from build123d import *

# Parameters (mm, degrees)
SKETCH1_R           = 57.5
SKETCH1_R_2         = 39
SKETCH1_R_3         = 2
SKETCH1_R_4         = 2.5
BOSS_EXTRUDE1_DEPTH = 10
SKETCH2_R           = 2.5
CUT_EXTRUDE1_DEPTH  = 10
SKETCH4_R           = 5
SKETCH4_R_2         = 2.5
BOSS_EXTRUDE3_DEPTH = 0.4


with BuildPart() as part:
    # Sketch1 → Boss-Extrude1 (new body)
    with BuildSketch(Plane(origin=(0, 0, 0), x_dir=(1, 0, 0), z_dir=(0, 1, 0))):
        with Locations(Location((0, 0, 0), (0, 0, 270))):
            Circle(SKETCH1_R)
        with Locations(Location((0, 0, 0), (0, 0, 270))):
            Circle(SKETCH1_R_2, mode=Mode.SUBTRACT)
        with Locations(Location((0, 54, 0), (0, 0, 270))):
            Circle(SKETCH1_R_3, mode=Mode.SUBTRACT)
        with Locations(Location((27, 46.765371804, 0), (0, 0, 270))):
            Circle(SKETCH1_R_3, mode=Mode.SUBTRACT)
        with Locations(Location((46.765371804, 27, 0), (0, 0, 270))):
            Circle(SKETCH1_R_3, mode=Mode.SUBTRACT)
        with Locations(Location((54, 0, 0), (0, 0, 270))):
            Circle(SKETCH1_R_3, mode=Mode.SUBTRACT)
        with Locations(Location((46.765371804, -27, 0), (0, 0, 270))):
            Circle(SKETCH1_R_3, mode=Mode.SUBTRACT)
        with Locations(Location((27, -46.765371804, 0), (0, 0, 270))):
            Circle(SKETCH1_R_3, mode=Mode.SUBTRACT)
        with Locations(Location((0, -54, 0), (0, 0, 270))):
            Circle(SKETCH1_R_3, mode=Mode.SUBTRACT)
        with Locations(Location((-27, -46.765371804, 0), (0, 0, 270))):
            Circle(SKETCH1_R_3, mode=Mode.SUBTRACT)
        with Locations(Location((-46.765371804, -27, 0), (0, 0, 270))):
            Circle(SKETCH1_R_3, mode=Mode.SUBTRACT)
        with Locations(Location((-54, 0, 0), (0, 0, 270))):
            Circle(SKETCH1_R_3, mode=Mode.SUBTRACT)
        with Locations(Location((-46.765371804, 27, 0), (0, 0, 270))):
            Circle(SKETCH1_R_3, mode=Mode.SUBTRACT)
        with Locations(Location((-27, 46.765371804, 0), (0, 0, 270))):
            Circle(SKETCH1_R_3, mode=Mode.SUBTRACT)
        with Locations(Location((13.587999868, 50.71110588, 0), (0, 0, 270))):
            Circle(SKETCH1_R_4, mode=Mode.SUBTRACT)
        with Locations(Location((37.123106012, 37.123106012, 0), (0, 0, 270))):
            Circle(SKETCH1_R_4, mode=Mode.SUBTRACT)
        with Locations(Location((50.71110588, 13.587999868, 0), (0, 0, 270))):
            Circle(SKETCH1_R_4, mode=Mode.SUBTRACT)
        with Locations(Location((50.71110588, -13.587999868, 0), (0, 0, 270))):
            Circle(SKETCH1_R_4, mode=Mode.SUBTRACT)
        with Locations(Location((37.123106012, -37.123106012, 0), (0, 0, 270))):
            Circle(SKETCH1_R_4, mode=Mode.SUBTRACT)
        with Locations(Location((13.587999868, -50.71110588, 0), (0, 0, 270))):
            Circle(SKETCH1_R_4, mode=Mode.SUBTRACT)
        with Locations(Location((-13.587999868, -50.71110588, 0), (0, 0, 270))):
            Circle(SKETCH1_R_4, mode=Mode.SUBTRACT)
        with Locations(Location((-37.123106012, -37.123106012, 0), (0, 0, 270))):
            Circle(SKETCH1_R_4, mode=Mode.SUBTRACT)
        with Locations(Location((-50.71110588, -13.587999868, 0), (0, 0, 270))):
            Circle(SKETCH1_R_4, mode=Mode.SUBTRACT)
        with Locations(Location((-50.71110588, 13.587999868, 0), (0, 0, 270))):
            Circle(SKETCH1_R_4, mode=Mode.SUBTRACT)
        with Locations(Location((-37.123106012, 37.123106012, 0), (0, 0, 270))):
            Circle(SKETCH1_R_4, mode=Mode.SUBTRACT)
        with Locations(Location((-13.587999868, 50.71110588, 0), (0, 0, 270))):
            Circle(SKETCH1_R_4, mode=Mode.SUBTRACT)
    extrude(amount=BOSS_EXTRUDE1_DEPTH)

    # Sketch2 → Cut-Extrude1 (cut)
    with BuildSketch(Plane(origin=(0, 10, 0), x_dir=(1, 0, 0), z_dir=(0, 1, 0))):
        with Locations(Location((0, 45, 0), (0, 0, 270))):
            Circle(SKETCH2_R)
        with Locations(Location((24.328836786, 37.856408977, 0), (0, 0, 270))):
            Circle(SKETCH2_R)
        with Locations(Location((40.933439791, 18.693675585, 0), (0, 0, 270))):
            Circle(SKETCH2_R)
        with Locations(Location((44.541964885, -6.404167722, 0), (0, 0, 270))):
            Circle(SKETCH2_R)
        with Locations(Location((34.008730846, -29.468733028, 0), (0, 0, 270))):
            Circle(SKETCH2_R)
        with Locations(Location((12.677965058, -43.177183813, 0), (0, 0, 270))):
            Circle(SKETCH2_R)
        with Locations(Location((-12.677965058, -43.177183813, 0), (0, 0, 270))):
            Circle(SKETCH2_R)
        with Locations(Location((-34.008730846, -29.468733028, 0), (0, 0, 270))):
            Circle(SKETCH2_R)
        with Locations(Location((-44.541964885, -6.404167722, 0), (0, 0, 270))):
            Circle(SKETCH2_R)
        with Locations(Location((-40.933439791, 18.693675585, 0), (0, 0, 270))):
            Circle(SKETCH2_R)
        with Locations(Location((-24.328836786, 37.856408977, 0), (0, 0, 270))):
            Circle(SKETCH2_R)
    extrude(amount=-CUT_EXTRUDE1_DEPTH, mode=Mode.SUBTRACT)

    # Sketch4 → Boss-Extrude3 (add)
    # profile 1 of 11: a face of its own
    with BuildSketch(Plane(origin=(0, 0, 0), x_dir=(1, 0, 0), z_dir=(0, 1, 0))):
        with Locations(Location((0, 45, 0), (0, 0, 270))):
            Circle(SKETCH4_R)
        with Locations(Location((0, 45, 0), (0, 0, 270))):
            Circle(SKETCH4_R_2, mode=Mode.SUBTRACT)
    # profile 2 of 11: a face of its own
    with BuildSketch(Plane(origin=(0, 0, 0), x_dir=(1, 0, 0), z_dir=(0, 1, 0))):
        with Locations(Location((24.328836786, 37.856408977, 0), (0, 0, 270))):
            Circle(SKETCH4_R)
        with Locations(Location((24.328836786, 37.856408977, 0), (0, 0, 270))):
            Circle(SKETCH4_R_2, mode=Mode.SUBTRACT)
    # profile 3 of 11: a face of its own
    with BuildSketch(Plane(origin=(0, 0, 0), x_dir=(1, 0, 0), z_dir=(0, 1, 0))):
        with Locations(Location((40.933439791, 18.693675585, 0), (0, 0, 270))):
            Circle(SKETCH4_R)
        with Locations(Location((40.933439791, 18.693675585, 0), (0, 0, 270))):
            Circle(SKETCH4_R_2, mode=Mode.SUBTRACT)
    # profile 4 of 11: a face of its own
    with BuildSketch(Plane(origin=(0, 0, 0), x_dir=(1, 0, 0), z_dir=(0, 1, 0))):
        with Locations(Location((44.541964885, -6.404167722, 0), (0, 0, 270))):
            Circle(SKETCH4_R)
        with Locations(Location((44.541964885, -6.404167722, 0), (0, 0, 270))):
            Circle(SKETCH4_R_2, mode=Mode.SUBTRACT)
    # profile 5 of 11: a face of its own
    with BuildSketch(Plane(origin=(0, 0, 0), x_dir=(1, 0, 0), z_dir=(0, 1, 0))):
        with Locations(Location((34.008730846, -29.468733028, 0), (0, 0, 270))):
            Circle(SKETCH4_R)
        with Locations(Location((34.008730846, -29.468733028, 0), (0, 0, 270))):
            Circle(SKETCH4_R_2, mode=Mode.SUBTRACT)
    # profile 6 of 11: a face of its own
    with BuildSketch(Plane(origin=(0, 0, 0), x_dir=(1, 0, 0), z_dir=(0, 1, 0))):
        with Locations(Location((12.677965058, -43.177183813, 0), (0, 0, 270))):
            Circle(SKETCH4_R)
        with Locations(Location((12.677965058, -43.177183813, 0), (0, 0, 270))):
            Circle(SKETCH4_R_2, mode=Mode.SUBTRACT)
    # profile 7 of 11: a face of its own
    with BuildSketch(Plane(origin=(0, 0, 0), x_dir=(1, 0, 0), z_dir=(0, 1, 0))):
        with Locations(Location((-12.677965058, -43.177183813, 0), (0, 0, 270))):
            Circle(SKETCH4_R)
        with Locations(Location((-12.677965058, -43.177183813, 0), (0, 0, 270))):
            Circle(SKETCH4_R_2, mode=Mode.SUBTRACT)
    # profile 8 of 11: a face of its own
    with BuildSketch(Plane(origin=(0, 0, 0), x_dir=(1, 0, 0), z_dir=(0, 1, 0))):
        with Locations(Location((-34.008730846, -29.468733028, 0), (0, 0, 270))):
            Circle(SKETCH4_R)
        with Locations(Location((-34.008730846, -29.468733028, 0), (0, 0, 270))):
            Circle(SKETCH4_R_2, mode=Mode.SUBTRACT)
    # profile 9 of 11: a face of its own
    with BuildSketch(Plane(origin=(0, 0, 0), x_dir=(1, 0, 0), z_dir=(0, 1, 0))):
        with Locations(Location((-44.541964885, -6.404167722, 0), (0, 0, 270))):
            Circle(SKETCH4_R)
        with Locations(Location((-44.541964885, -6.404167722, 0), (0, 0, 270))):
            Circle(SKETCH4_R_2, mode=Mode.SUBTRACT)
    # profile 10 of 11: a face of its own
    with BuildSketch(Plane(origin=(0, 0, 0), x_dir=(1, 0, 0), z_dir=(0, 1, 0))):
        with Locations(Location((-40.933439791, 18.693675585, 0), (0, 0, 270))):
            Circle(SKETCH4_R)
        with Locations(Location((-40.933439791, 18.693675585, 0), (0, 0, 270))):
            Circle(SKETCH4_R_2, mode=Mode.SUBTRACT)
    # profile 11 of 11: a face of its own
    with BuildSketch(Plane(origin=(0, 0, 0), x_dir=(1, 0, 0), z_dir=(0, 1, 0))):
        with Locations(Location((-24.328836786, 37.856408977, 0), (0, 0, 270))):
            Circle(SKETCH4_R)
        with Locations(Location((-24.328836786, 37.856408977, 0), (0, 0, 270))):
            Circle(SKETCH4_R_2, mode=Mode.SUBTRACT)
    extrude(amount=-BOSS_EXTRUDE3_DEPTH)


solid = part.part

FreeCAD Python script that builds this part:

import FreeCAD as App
import Part
import Sketcher

doc = App.newDocument("Part")
params = doc.addObject("Spreadsheet::Sheet", "Params")
for row, (alias, value) in enumerate([
    ("sketch1_diameter", "115 mm"),
    ("sketch1_diameter2", "5 mm"),
    ("sketch1_diameter3", "4 mm"),
    ("sketch1_diameter4", "78 mm"),
    ("pad1_length", "10 mm"),
    ("sketch2_diameter", "5 mm"),
    ("pocket1_length", "10 mm"),
    ("sketch3_diameter", "10 mm"),
    ("sketch3_diameter2", "5 mm"),
    ("pad2_length", "0.4 mm"),
], start=1):
    params.set(f"A{row}", alias)
    params.set(f"B{row}", "=" + value)
    params.setAlias(f"B{row}", alias)

body = doc.addObject("PartDesign::Body", "Body")

sketch1 = body.newObject("Sketcher::SketchObject", "Sketch")
sketch1.AttachmentSupport = (doc.getObject("XZ_Plane"), [""])
sketch1.MapMode = "FlatFace"
sketch1.addGeometry([
    Part.Circle(App.Vector(0, 0, 0), App.Vector(0, 0, 1), 57.5),
    Part.Circle(App.Vector(-37.123106, -37.123106, 0), App.Vector(0, 0, 1), 2.5),
    Part.Circle(App.Vector(-46.765372, -27, 0), App.Vector(0, 0, 1), 2),
    Part.Circle(App.Vector(-50.711106, -13.588, 0), App.Vector(0, 0, 1), 2.5),
    Part.Circle(App.Vector(-27, -46.765372, 0), App.Vector(0, 0, 1), 2),
    Part.Circle(App.Vector(-13.588, -50.711106, 0), App.Vector(0, 0, 1), 2.5),
    Part.Circle(App.Vector(0, -54, 0), App.Vector(0, 0, 1), 2),
    Part.Circle(App.Vector(-54, 0, 0), App.Vector(0, 0, 1), 2),
    Part.Circle(App.Vector(-50.711106, 13.588, 0), App.Vector(0, 0, 1), 2.5),
    Part.Circle(App.Vector(-46.765372, 27, 0), App.Vector(0, 0, 1), 2),
    Part.Circle(App.Vector(-37.123106, 37.123106, 0), App.Vector(0, 0, 1), 2.5),
    Part.Circle(App.Vector(-27, 46.765372, 0), App.Vector(0, 0, 1), 2),
    Part.Circle(App.Vector(-13.588, 50.711106, 0), App.Vector(0, 0, 1), 2.5),
    Part.Circle(App.Vector(13.588, -50.711106, 0), App.Vector(0, 0, 1), 2.5),
    Part.Circle(App.Vector(27, -46.765372, 0), App.Vector(0, 0, 1), 2),
    Part.Circle(App.Vector(37.123106, -37.123106, 0), App.Vector(0, 0, 1), 2.5),
    Part.Circle(App.Vector(46.765372, -27, 0), App.Vector(0, 0, 1), 2),
    Part.Circle(App.Vector(50.711106, -13.588, 0), App.Vector(0, 0, 1), 2.5),
    Part.Circle(App.Vector(54, 0, 0), App.Vector(0, 0, 1), 2),
    Part.Circle(App.Vector(0, 0, 0), App.Vector(0, 0, 1), 39),
    Part.Circle(App.Vector(0, 54, 0), App.Vector(0, 0, 1), 2),
    Part.Circle(App.Vector(13.588, 50.711106, 0), App.Vector(0, 0, 1), 2.5),
    Part.Circle(App.Vector(27, 46.765372, 0), App.Vector(0, 0, 1), 2),
    Part.Circle(App.Vector(50.711106, 13.588, 0), App.Vector(0, 0, 1), 2.5),
    Part.Circle(App.Vector(46.765372, 27, 0), App.Vector(0, 0, 1), 2),
    Part.Circle(App.Vector(37.123106, 37.123106, 0), App.Vector(0, 0, 1), 2.5),
], False)
sketch1.addConstraint([
    Sketcher.Constraint("Coincident", 0, 3, -1, 1),
    Sketcher.Constraint("Coincident", 19, 3, -1, 1),
    Sketcher.Constraint("Equal", 1, 3),
    Sketcher.Constraint("Equal", 2, 4),
    Sketcher.Constraint("Equal", 3, 5),
    Sketcher.Constraint("Equal", 4, 6),
    Sketcher.Constraint("Equal", 6, 7),
    Sketcher.Constraint("Equal", 5, 8),
    Sketcher.Constraint("Equal", 7, 9),
    Sketcher.Constraint("Equal", 8, 10),
    Sketcher.Constraint("Equal", 9, 11),
    Sketcher.Constraint("Equal", 10, 12),
    Sketcher.Constraint("Equal", 12, 13),
    Sketcher.Constraint("Equal", 11, 14),
    Sketcher.Constraint("Equal", 13, 15),
    Sketcher.Constraint("Equal", 14, 16),
    Sketcher.Constraint("Equal", 15, 17),
    Sketcher.Constraint("Equal", 16, 18),
    Sketcher.Constraint("Equal", 18, 20),
    Sketcher.Constraint("Equal", 17, 21),
    Sketcher.Constraint("Equal", 20, 22),
    Sketcher.Constraint("Equal", 21, 23),
    Sketcher.Constraint("Equal", 22, 24),
    Sketcher.Constraint("Equal", 23, 25),
    Sketcher.Constraint("Symmetric", 12, 3, 13, 3, -1, 1),
    Sketcher.Constraint("Symmetric", 11, 3, 14, 3, -1, 1),
    Sketcher.Constraint("Symmetric", 10, 3, 15, 3, -1, 1),
    Sketcher.Constraint("Symmetric", 9, 3, 16, 3, -1, 1),
    Sketcher.Constraint("Symmetric", 8, 3, 17, 3, -1, 1),
    Sketcher.Constraint("Symmetric", 7, 3, 18, 3, -1, 1),
    Sketcher.Constraint("Symmetric", 6, 3, 20, 3, -1, 1),
    Sketcher.Constraint("Symmetric", 5, 3, 21, 3, -1, 1),
    Sketcher.Constraint("Symmetric", 4, 3, 22, 3, -1, 1),
    Sketcher.Constraint("Symmetric", 3, 3, 23, 3, -1, 1),
    Sketcher.Constraint("Symmetric", 2, 3, 24, 3, -1, 1),
    Sketcher.Constraint("Symmetric", 1, 3, 25, 3, -1, 1),
    Sketcher.Constraint("Symmetric", 5, 3, 13, 3, -2),
    Sketcher.Constraint("Symmetric", 4, 3, 14, 3, -2),
    Sketcher.Constraint("Symmetric", 1, 3, 15, 3, -2),
    Sketcher.Constraint("Symmetric", 2, 3, 16, 3, -2),
    Sketcher.Constraint("Symmetric", 3, 3, 17, 3, -2),
    Sketcher.Constraint("PointOnObject", 6, 3, -2),
    Sketcher.Constraint("PointOnObject", 7, 3, -1),
    Sketcher.Constraint("Diameter", 0, 115.0),
    Sketcher.Constraint("Diameter", 1, 5.0),
    Sketcher.Constraint("Diameter", 2, 4.0),
    Sketcher.Constraint("Diameter", 19, 78.0),
    Sketcher.Constraint("DistanceY", 2, 3, -1, 1, 27.0),
    Sketcher.Constraint("DistanceX", 4, 3, -1, 1, 27.0),
    Sketcher.Constraint("DistanceY", 6, 3, -1, 1, 54.0),
    Sketcher.Constraint("DistanceX", 7, 3, -1, 1, 54.0),
    Sketcher.Constraint("DistanceY", 3, 3, -1, 1, 13.588),
    Sketcher.Constraint("DistanceX", 5, 3, -1, 1, 13.588),
    Sketcher.Constraint("DistanceX", 3, 3, 1, 3, 13.588),
    Sketcher.Constraint("DistanceY", 5, 3, 1, 3, 13.588),
    Sketcher.Constraint("DistanceX", 2, 3, -1, 1, 46.765372),
    Sketcher.Constraint("DistanceY", 4, 3, -1, 1, 46.765372),
    Sketcher.Constraint("DistanceX", 1, 3, -1, 1, 37.123106),
    Sketcher.Constraint("DistanceY", 1, 3, -1, 1, 37.123106),
])
sketch1.setExpression("Constraints[43]", "Params.sketch1_diameter")
sketch1.setExpression("Constraints[44]", "Params.sketch1_diameter2")
sketch1.setExpression("Constraints[45]", "Params.sketch1_diameter3")
sketch1.setExpression("Constraints[46]", "Params.sketch1_diameter4")
pad1 = body.newObject("PartDesign::Pad", "Pad")
pad1.Profile = sketch1
pad1.setExpression("Length", "Params.pad1_length")
pad1.Reversed = True

sketch2 = body.newObject("Sketcher::SketchObject", "Sketch001")
sketch2.AttachmentSupport = (doc.getObject("XZ_Plane"), [""])
sketch2.MapMode = "FlatFace"
sketch2.AttachmentOffset = App.Placement(App.Vector(0, 0, -10), App.Rotation())
sketch2.addGeometry([
    Part.Circle(App.Vector(0, -45, 0), App.Vector(0, 0, 1), 2.5),
    Part.Circle(App.Vector(24.328837, -37.856409, 0), App.Vector(0, 0, 1), 2.5),
    Part.Circle(App.Vector(40.93344, -18.693676, 0), App.Vector(0, 0, 1), 2.5),
    Part.Circle(App.Vector(44.541965, 6.404168, 0), App.Vector(0, 0, 1), 2.5),
    Part.Circle(App.Vector(34.008731, 29.468733, 0), App.Vector(0, 0, 1), 2.5),
    Part.Circle(App.Vector(12.677965, 43.177184, 0), App.Vector(0, 0, 1), 2.5),
    Part.Circle(App.Vector(-12.677965, 43.177184, 0), App.Vector(0, 0, 1), 2.5),
    Part.Circle(App.Vector(-34.008731, 29.468733, 0), App.Vector(0, 0, 1), 2.5),
    Part.Circle(App.Vector(-44.541965, 6.404168, 0), App.Vector(0, 0, 1), 2.5),
    Part.Circle(App.Vector(-40.93344, -18.693676, 0), App.Vector(0, 0, 1), 2.5),
    Part.Circle(App.Vector(-24.328837, -37.856409, 0), App.Vector(0, 0, 1), 2.5),
], False)
sketch2.addConstraint([
    Sketcher.Constraint("Equal", 0, 1),
    Sketcher.Constraint("Equal", 1, 2),
    Sketcher.Constraint("Equal", 2, 3),
    Sketcher.Constraint("Equal", 3, 4),
    Sketcher.Constraint("Equal", 4, 5),
    Sketcher.Constraint("Equal", 5, 6),
    Sketcher.Constraint("Equal", 6, 7),
    Sketcher.Constraint("Equal", 7, 8),
    Sketcher.Constraint("Equal", 8, 9),
    Sketcher.Constraint("Equal", 9, 10),
    Sketcher.Constraint("Symmetric", 5, 3, 6, 3, -2),
    Sketcher.Constraint("Symmetric", 4, 3, 7, 3, -2),
    Sketcher.Constraint("Symmetric", 3, 3, 8, 3, -2),
    Sketcher.Constraint("Symmetric", 2, 3, 9, 3, -2),
    Sketcher.Constraint("Symmetric", 1, 3, 10, 3, -2),
    Sketcher.Constraint("PointOnObject", 0, 3, -2),
    Sketcher.Constraint("Diameter", 0, 5.0),
    Sketcher.Constraint("DistanceY", 0, 3, -1, 1, 45.0),
    Sketcher.Constraint("DistanceX", 5, 3, 3, 3, 31.864),
    Sketcher.Constraint("DistanceX", 6, 3, 1, 3, 37.006802),
    Sketcher.Constraint("DistanceY", 1, 3, -1, 1, 37.856409),
    Sketcher.Constraint("DistanceX", -1, 1, 2, 3, 40.93344),
    Sketcher.Constraint("DistanceX", -1, 1, 4, 3, 34.008731),
    Sketcher.Constraint("DistanceX", 1, 3, 3, 3, 20.213128),
    Sketcher.Constraint("DistanceY", 2, 3, 4, 3, 48.162409),
    Sketcher.Constraint("DistanceY", 4, 3, 5, 3, 13.708451),
    Sketcher.Constraint("DistanceY", 2, 3, -1, 1, 18.693676),
    Sketcher.Constraint("DistanceY", -1, 1, 3, 3, 6.404168),
])
sketch2.setExpression("Constraints[16]", "Params.sketch2_diameter")
pocket1 = body.newObject("PartDesign::Pocket", "Pocket")
pocket1.Profile = sketch2
pocket1.setExpression("Length", "Params.pocket1_length")
pocket1.Reversed = True

sketch3 = body.newObject("Sketcher::SketchObject", "Sketch002")
sketch3.AttachmentSupport = (doc.getObject("XZ_Plane"), [""])
sketch3.MapMode = "FlatFace"
sketch3.addGeometry([
    Part.Circle(App.Vector(0, -45, 0), App.Vector(0, 0, 1), 5),
    Part.Circle(App.Vector(0, -45, 0), App.Vector(0, 0, 1), 2.5),
    Part.Circle(App.Vector(24.328837, -37.856409, 0), App.Vector(0, 0, 1), 5),
    Part.Circle(App.Vector(24.328837, -37.856409, 0), App.Vector(0, 0, 1), 2.5),
    Part.Circle(App.Vector(40.93344, -18.693676, 0), App.Vector(0, 0, 1), 5),
    Part.Circle(App.Vector(40.93344, -18.693676, 0), App.Vector(0, 0, 1), 2.5),
    Part.Circle(App.Vector(44.541965, 6.404168, 0), App.Vector(0, 0, 1), 5),
    Part.Circle(App.Vector(44.541965, 6.404168, 0), App.Vector(0, 0, 1), 2.5),
    Part.Circle(App.Vector(34.008731, 29.468733, 0), App.Vector(0, 0, 1), 5),
    Part.Circle(App.Vector(34.008731, 29.468733, 0), App.Vector(0, 0, 1), 2.5),
    Part.Circle(App.Vector(12.677965, 43.177184, 0), App.Vector(0, 0, 1), 5),
    Part.Circle(App.Vector(12.677965, 43.177184, 0), App.Vector(0, 0, 1), 2.5),
    Part.Circle(App.Vector(-12.677965, 43.177184, 0), App.Vector(0, 0, 1), 5),
    Part.Circle(App.Vector(-12.677965, 43.177184, 0), App.Vector(0, 0, 1), 2.5),
    Part.Circle(App.Vector(-34.008731, 29.468733, 0), App.Vector(0, 0, 1), 5),
    Part.Circle(App.Vector(-34.008731, 29.468733, 0), App.Vector(0, 0, 1), 2.5),
    Part.Circle(App.Vector(-44.541965, 6.404168, 0), App.Vector(0, 0, 1), 5),
    Part.Circle(App.Vector(-44.541965, 6.404168, 0), App.Vector(0, 0, 1), 2.5),
    Part.Circle(App.Vector(-40.93344, -18.693676, 0), App.Vector(0, 0, 1), 5),
    Part.Circle(App.Vector(-40.93344, -18.693676, 0), App.Vector(0, 0, 1), 2.5),
    Part.Circle(App.Vector(-24.328837, -37.856409, 0), App.Vector(0, 0, 1), 5),
    Part.Circle(App.Vector(-24.328837, -37.856409, 0), App.Vector(0, 0, 1), 2.5),
], False)
sketch3.addConstraint([
    Sketcher.Constraint("Coincident", 1, 3, 0, 3),
    Sketcher.Constraint("Coincident", 3, 3, 2, 3),
    Sketcher.Constraint("Coincident", 5, 3, 4, 3),
    Sketcher.Constraint("Coincident", 7, 3, 6, 3),
    Sketcher.Constraint("Coincident", 9, 3, 8, 3),
    Sketcher.Constraint("Coincident", 11, 3, 10, 3),
    Sketcher.Constraint("Coincident", 13, 3, 12, 3),
    Sketcher.Constraint("Coincident", 15, 3, 14, 3),
    Sketcher.Constraint("Coincident", 17, 3, 16, 3),
    Sketcher.Constraint("Coincident", 19, 3, 18, 3),
    Sketcher.Constraint("Coincident", 21, 3, 20, 3),
    Sketcher.Constraint("Equal", 0, 2),
    Sketcher.Constraint("Equal", 1, 3),
    Sketcher.Constraint("Equal", 2, 4),
    Sketcher.Constraint("Equal", 3, 5),
    Sketcher.Constraint("Equal", 4, 6),
    Sketcher.Constraint("Equal", 5, 7),
    Sketcher.Constraint("Equal", 6, 8),
    Sketcher.Constraint("Equal", 7, 9),
    Sketcher.Constraint("Equal", 8, 10),
    Sketcher.Constraint("Equal", 9, 11),
    Sketcher.Constraint("Equal", 10, 12),
    Sketcher.Constraint("Equal", 11, 13),
    Sketcher.Constraint("Equal", 12, 14),
    Sketcher.Constraint("Equal", 13, 15),
    Sketcher.Constraint("Equal", 14, 16),
    Sketcher.Constraint("Equal", 15, 17),
    Sketcher.Constraint("Equal", 16, 18),
    Sketcher.Constraint("Equal", 17, 19),
    Sketcher.Constraint("Equal", 18, 20),
    Sketcher.Constraint("Equal", 19, 21),
    Sketcher.Constraint("Symmetric", 10, 3, 12, 3, -2),
    Sketcher.Constraint("Symmetric", 8, 3, 14, 3, -2),
    Sketcher.Constraint("Symmetric", 6, 3, 16, 3, -2),
    Sketcher.Constraint("Symmetric", 4, 3, 18, 3, -2),
    Sketcher.Constraint("Symmetric", 2, 3, 20, 3, -2),
    Sketcher.Constraint("PointOnObject", 0, 3, -2),
    Sketcher.Constraint("Diameter", 0, 10.0),
    Sketcher.Constraint("Diameter", 1, 5.0),
    Sketcher.Constraint("DistanceY", 0, 3, -1, 1, 45.0),
    Sketcher.Constraint("DistanceX", 10, 3, 6, 3, 31.864),
    Sketcher.Constraint("DistanceY", 2, 3, -1, 1, 37.856409),
    Sketcher.Constraint("DistanceX", -1, 1, 4, 3, 40.93344),
    Sketcher.Constraint("DistanceX", -1, 1, 8, 3, 34.008731),
    Sketcher.Constraint("DistanceX", 2, 3, 6, 3, 20.213128),
    Sketcher.Constraint("DistanceY", 4, 3, 8, 3, 48.162409),
    Sketcher.Constraint("DistanceY", 8, 3, 10, 3, 13.708451),
    Sketcher.Constraint("DistanceX", 12, 3, 10, 3, 25.35593),
    Sketcher.Constraint("DistanceY", 4, 3, -1, 1, 18.693676),
    Sketcher.Constraint("DistanceY", -1, 1, 6, 3, 6.404168),
])
sketch3.setExpression("Constraints[37]", "Params.sketch3_diameter")
sketch3.setExpression("Constraints[38]", "Params.sketch3_diameter2")
pad2 = body.newObject("PartDesign::Pad", "Pad001")
pad2.Profile = sketch3
pad2.setExpression("Length", "Params.pad2_length")

doc.recompute()
